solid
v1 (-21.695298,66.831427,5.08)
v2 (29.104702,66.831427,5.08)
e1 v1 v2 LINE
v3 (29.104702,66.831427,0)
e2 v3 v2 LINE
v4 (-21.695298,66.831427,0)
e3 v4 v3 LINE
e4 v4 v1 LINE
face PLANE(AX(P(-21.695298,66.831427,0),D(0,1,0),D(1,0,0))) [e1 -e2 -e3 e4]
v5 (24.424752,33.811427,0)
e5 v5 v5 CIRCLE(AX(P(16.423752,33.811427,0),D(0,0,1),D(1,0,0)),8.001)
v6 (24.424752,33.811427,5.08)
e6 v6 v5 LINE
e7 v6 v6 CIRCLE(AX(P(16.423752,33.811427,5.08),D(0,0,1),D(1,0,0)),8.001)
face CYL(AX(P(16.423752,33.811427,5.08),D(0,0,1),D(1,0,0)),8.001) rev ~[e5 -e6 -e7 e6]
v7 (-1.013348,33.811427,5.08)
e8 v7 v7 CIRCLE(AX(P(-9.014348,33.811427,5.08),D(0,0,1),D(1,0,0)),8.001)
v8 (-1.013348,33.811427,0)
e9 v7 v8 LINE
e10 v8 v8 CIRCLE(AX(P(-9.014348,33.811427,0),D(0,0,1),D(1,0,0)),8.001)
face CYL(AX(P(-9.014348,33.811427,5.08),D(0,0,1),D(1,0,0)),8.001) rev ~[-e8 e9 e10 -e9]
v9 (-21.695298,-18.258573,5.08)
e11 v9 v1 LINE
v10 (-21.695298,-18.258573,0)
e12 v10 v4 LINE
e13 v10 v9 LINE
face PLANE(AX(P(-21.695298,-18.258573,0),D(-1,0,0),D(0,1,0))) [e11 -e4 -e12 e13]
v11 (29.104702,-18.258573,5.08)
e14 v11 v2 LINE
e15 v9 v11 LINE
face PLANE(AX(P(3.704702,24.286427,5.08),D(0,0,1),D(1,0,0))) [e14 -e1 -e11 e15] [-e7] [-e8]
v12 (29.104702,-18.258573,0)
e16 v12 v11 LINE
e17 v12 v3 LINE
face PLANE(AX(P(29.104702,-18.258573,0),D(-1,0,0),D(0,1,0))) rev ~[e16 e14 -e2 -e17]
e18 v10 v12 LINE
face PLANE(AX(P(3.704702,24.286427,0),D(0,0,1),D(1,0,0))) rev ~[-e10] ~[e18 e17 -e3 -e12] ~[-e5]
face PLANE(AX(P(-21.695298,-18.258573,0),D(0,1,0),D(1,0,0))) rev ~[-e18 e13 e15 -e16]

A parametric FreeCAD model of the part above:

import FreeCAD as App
import Part
import Sketcher
from FreeCAD import Vector
Q = App.Units.Quantity

doc = App.newDocument("Part")
body = doc.addObject("PartDesign::Body", "Body")

# Sketch on XY plane
sketch1 = body.newObject("Sketcher::SketchObject", "Sketch")
sketch1.AttachmentSupport = (doc.getObject("XY_Plane"), [""])
sketch1.MapMode = "FlatFace"
sketch1.addGeometry(Part.LineSegment(Vector(-22, 67, 0), Vector(-22, -18, 0)), False)
sketch1.addGeometry(Part.LineSegment(Vector(-22, -18, 0), Vector(29, -18, 0)), False)
sketch1.addGeometry(Part.LineSegment(Vector(29, -18, 0), Vector(29, 67, 0)), False)
sketch1.addGeometry(Part.LineSegment(Vector(29, 67, 0), Vector(-22, 67, 0)), False)
sketch1.addConstraint(Sketcher.Constraint("Coincident", 0, 2, 1, 1))
sketch1.addConstraint(Sketcher.Constraint("Coincident", 1, 2, 2, 1))
sketch1.addConstraint(Sketcher.Constraint("Coincident", 2, 2, 3, 1))
sketch1.addConstraint(Sketcher.Constraint("Coincident", 3, 2, 0, 1))
sketch1.addConstraint(Sketcher.Constraint("Vertical", 0))
sketch1.addConstraint(Sketcher.Constraint("Horizontal", 1))
sketch1.addConstraint(Sketcher.Constraint("Vertical", 2))
sketch1.addConstraint(Sketcher.Constraint("Horizontal", 3))
sketch1.addConstraint(Sketcher.Constraint("DistanceX", 1, 1, 1, 2, Q("2 in")))
sketch1.addConstraint(Sketcher.Constraint("DistanceY", 0, 2, 0, 1, Q("3.35 in")))
sketch1.addConstraint(Sketcher.Constraint("DistanceX", 0, 2, -1, 1, 21.695298))
sketch1.addConstraint(Sketcher.Constraint("DistanceY", 0, 2, -1, 1, 18.258573))
pad1 = body.newObject("PartDesign::Pad", "Pad")
pad1.Profile = sketch1
pad1.Length = Q("0.2 in")

# Sketch on XY plane
sketch2 = body.newObject("Sketcher::SketchObject", "Sketch001")
sketch2.AttachmentSupport = (doc.getObject("XY_Plane"), [""])
sketch2.MapMode = "FlatFace"
sketch2.AttachmentOffset = App.Placement(Vector(0, 0, 0.2 * 25.4), App.Rotation())
sketch2.addGeometry(Part.Circle(Vector(16, 34, 0), Vector(0, 0, 1), 8), False)
sketch2.addGeometry(Part.Circle(Vector(-9, 34, 0), Vector(0, 0, 1), 8), False)
sketch2.addConstraint(Sketcher.Constraint("Equal", 0, 1))
sketch2.addConstraint(Sketcher.Constraint("Horizontal", 0, 3, 1, 3))
sketch2.addConstraint(Sketcher.Constraint("Diameter", 0, Q("0.63 in")))
sketch2.addConstraint(Sketcher.Constraint("DistanceX", 1, 3, 0, 3, Q("1.0015 in")))
sketch2.addConstraint(Sketcher.Constraint("DistanceX", -1, 1, 0, 3, 16.423752))
sketch2.addConstraint(Sketcher.Constraint("DistanceY", -1, 1, 0, 3, 33.811427))
pocket1 = body.newObject("PartDesign::Pocket", "Pocket")
pocket1.Profile = sketch2
pocket1.Length = Q("1 in")

doc.recompute()
